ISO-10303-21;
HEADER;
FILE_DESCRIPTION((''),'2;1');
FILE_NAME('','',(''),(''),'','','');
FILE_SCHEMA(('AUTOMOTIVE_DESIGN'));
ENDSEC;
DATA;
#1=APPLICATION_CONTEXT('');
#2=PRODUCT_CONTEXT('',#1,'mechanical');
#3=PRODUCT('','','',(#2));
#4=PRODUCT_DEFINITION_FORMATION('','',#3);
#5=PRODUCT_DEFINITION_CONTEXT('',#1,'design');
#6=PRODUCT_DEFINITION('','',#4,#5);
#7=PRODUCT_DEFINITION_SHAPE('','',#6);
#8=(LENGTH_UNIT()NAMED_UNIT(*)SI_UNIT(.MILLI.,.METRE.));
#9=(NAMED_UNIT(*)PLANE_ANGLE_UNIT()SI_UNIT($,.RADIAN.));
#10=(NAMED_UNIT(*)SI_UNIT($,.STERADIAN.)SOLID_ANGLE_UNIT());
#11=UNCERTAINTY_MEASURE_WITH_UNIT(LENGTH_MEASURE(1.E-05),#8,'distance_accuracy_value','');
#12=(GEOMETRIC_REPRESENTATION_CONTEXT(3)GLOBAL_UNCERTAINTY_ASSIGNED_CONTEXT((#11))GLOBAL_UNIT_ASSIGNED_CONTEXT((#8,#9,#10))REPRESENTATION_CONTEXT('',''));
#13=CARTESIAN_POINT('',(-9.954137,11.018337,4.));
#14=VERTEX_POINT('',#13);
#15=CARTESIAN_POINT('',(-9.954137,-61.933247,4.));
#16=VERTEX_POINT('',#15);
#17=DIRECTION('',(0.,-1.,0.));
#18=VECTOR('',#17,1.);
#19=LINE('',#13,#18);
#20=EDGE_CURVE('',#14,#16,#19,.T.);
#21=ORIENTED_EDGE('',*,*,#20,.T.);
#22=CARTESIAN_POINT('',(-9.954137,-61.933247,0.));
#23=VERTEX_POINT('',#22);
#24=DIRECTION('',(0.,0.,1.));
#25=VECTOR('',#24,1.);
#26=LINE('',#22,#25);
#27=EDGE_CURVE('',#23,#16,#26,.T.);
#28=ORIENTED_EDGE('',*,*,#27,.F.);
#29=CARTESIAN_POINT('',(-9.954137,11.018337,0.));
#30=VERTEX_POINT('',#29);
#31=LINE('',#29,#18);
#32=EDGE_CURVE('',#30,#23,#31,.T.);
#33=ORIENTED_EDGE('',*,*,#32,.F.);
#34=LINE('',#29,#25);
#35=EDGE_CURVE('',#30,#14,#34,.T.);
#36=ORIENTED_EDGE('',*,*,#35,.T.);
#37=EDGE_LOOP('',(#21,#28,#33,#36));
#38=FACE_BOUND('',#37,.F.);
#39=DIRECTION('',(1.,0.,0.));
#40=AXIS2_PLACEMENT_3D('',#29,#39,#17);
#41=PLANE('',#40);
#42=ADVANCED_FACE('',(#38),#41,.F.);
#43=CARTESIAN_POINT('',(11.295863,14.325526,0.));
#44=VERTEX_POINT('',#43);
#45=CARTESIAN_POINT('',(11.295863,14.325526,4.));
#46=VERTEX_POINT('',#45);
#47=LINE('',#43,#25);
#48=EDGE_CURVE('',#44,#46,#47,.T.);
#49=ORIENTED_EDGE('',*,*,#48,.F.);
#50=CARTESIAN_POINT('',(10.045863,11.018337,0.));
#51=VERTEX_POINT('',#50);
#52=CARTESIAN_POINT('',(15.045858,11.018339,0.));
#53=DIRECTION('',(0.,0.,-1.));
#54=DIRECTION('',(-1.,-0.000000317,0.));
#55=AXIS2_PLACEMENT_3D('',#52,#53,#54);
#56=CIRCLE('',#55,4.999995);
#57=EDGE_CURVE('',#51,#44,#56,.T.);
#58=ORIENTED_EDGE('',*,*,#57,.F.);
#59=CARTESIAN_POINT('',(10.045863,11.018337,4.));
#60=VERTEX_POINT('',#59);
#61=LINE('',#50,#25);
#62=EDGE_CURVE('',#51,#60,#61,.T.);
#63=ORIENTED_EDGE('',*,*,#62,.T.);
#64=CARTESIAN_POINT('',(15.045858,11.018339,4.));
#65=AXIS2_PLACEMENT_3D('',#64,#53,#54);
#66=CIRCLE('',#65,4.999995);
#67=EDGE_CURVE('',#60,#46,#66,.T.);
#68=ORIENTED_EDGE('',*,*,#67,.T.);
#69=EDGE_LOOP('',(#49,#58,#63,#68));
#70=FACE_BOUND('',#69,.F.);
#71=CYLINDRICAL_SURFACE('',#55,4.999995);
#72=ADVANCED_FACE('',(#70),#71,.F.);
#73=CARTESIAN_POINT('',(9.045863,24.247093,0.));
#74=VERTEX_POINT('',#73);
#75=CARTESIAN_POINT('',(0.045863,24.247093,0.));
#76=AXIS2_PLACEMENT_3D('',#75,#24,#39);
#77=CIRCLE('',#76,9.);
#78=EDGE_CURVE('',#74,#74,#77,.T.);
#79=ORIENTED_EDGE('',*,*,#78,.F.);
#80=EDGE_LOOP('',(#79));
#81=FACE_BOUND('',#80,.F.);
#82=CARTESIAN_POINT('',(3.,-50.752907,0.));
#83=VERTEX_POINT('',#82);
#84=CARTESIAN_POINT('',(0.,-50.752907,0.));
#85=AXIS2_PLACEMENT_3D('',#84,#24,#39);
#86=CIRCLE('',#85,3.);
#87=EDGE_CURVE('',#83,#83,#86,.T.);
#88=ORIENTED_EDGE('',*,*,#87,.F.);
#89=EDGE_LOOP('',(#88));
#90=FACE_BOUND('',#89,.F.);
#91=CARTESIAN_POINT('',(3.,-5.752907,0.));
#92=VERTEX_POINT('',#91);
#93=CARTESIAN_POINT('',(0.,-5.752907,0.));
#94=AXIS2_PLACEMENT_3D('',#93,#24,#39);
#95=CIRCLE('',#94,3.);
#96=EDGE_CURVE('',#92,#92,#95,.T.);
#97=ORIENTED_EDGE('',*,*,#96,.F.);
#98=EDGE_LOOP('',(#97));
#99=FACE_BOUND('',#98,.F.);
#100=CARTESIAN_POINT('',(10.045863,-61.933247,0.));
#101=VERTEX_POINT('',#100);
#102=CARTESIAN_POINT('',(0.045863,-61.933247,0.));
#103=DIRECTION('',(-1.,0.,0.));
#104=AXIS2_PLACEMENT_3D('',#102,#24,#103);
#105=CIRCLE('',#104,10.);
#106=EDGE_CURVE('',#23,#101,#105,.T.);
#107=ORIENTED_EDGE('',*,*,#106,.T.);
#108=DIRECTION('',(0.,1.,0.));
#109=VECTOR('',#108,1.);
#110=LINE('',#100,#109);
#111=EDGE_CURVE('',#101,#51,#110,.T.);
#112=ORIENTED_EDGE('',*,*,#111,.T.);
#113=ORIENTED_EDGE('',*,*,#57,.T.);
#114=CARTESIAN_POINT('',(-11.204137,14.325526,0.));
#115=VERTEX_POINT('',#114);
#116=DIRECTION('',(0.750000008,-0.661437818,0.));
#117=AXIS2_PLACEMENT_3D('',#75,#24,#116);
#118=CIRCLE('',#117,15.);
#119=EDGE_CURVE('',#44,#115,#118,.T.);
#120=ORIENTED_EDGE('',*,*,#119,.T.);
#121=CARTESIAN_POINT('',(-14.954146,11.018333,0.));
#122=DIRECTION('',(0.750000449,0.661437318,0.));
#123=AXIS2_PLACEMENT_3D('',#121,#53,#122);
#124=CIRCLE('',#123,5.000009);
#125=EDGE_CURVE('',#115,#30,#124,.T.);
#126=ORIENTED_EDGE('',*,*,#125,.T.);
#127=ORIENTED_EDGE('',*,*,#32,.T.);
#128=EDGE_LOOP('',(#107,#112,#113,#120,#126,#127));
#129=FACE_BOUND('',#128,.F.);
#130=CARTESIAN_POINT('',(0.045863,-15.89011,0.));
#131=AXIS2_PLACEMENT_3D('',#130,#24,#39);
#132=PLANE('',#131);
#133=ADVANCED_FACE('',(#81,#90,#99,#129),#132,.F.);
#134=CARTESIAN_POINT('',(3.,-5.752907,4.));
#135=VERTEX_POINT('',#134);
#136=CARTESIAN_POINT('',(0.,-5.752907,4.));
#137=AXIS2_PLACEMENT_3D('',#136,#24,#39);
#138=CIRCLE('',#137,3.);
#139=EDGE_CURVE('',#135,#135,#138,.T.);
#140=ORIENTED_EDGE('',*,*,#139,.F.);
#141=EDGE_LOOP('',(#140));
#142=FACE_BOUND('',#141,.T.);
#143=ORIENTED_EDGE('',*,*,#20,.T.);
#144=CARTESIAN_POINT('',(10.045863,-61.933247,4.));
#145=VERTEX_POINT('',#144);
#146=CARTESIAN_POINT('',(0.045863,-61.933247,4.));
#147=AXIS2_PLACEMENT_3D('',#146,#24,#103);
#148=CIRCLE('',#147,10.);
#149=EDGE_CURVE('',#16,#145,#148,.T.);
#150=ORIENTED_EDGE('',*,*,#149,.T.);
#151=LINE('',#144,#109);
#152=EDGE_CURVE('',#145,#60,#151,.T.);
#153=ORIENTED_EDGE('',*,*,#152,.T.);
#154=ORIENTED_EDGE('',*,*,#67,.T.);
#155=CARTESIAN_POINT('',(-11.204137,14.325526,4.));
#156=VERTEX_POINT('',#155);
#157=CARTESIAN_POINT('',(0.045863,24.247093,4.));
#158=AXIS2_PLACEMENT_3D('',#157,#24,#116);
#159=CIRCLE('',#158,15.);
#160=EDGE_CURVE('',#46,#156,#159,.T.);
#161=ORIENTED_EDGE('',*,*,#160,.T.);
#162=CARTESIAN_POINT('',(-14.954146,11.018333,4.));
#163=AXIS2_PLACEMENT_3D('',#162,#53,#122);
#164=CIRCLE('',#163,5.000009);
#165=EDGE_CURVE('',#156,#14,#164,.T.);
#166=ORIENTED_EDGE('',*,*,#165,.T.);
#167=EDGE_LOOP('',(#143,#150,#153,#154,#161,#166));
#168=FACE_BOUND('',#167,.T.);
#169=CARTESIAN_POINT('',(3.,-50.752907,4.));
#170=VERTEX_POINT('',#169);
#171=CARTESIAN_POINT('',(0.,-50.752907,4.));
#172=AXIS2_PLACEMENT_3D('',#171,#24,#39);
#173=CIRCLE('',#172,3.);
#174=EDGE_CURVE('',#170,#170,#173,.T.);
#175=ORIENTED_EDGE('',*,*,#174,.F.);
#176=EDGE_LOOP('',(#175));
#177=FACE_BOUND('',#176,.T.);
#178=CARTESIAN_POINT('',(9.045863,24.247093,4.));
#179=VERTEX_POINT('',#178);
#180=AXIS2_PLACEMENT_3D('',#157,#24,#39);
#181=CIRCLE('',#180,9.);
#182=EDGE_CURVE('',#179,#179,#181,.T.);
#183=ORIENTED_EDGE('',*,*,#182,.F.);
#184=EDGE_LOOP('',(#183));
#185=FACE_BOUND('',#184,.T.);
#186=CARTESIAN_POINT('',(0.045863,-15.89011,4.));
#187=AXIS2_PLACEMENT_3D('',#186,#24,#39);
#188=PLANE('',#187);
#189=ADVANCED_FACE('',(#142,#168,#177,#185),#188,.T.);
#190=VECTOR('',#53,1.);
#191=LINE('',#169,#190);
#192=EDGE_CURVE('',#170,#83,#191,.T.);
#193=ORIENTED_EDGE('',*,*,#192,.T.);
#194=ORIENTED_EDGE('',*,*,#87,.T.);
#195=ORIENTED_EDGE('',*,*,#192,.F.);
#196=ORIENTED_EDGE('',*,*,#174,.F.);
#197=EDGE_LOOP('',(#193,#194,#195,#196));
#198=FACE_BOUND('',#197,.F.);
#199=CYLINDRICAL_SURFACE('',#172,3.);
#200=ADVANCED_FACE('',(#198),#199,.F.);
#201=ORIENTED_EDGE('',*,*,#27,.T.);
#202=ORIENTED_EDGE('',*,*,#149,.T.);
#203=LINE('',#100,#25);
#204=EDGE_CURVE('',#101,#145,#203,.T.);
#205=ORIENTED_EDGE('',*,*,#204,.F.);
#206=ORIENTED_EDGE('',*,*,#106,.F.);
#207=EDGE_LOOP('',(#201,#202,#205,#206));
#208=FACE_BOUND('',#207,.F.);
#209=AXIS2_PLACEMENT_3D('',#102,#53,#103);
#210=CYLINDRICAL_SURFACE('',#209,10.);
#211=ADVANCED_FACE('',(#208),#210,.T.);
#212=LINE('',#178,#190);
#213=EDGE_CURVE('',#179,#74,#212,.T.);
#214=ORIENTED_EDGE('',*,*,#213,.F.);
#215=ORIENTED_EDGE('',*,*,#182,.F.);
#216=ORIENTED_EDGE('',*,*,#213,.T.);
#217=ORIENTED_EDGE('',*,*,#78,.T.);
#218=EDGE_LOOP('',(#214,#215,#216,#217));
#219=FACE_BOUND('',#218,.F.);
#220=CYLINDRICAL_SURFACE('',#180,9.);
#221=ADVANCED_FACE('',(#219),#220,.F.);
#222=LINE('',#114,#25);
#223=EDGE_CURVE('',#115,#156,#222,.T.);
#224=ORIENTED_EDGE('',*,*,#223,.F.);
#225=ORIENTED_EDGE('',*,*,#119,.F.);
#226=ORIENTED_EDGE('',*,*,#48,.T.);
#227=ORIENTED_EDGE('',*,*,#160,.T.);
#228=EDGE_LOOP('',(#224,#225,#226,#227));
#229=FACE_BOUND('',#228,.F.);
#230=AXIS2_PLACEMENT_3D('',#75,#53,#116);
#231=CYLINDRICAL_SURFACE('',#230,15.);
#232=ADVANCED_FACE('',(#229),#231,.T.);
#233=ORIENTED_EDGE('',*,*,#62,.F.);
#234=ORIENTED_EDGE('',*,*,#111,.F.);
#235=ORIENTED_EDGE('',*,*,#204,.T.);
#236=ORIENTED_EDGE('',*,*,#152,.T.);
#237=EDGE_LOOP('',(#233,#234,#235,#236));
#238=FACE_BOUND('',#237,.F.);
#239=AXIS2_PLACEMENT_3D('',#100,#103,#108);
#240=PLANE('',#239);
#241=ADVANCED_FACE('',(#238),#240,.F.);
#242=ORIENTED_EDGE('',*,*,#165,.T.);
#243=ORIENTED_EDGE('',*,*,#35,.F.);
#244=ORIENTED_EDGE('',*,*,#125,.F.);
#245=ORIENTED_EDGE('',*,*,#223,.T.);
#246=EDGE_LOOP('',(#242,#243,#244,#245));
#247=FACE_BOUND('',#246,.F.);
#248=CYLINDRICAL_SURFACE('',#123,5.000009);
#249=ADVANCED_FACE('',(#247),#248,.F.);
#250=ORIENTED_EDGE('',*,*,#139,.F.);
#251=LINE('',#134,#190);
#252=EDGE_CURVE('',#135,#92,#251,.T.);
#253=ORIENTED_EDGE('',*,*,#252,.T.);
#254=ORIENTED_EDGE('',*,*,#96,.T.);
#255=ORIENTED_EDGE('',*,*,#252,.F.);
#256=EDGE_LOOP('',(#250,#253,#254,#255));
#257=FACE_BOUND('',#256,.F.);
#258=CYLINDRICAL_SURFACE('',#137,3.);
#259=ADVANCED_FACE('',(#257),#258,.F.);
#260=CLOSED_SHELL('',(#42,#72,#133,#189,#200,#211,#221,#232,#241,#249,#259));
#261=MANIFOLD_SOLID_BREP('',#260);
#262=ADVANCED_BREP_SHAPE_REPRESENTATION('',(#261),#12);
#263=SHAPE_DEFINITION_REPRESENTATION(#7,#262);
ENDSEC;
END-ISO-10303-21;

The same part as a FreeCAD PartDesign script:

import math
import FreeCAD as App
import Part
import Sketcher
from FreeCAD import Vector

doc = App.newDocument("Part")
body = doc.addObject("PartDesign::Body", "Body")

# Sketch on XY plane
sketch1 = body.newObject("Sketcher::SketchObject", "Sketch")
sketch1.AttachmentSupport = (doc.getObject("XY_Plane"), [""])
sketch1.MapMode = "FlatFace"
sketch1.addGeometry([
    Part.ArcOfCircle(Part.Circle(Vector(-14.954146, 11.018333, 0), Vector(0, 0, 1), 5.000009), math.radians(0.000041), math.radians(41.409583)),  # 0
    Part.LineSegment(Vector(-9.954137, 11.018337, 0), Vector(-9.954137, -61.933247, 0)),  # 1
    Part.ArcOfCircle(Part.Circle(Vector(0.045863, -61.933247, 0), Vector(0, 0, 1), 10), math.radians(180), math.radians(360)),  # 2
    Part.LineSegment(Vector(10.045863, -61.933247, 0), Vector(10.045863, 11.018337, 0)),  # 3
    Part.ArcOfCircle(Part.Circle(Vector(15.045858, 11.018339, 0), Vector(0, 0, 1), 4.999995), math.radians(138.590358), math.radians(180.000018)),  # 4
    Part.ArcOfCircle(Part.Circle(Vector(0.045863, 24.247093, 0), Vector(0, 0, 1), 15), math.radians(-41.409621), math.radians(221.409621)),  # 5
], False)
sketch1.addConstraint([
    Sketcher.Constraint("Tangent", 0, 1, 1, 1),
    Sketcher.Constraint("Tangent", 1, 2, 2, 1),
    Sketcher.Constraint("Tangent", 2, 2, 3, 1),
    Sketcher.Constraint("Tangent", 3, 2, 4, 2),
    Sketcher.Constraint("Tangent", 4, 1, 5, 1),
    Sketcher.Constraint("Tangent", 5, 2, 0, 2),
    Sketcher.Constraint("Vertical", 1),
    Sketcher.Constraint("Vertical", 3),
    Sketcher.Constraint("Horizontal", 4, 3, 0, 1),
    Sketcher.Constraint("Horizontal", 4, 1, 5, 2),
    Sketcher.Constraint("Radius", 2, 10.0),
    Sketcher.Constraint("Radius", 5, 15.0),
    Sketcher.Constraint("DistanceX", 5, 2, 4, 1, 22.5),
    Sketcher.Constraint("DistanceY", 1, 2, 1, 1, 72.951584),
    Sketcher.Constraint("DistanceX", -1, 1, 4, 3, 15.045858),
    Sketcher.Constraint("DistanceY", -1, 1, 4, 3, 11.018339),
])
pad1 = body.newObject("PartDesign::Pad", "Pad")
pad1.Profile = sketch1
pad1.Length = 4

# Sketch on XY plane
sketch2 = body.newObject("Sketcher::SketchObject", "Sketch001")
sketch2.AttachmentSupport = (doc.getObject("XY_Plane"), [""])
sketch2.MapMode = "FlatFace"
sketch2.AttachmentOffset = App.Placement(Vector(0, 0, 4), App.Rotation())
sketch2.addGeometry([
    Part.Circle(Vector(0.045863, 24.247093, 0), Vector(0, 0, 1), 9),
    Part.Circle(Vector(0, -5.752907, 0), Vector(0, 0, 1), 3),
    Part.Circle(Vector(0, -50.752907, 0), Vector(0, 0, 1), 3),
], False)
sketch2.addConstraint([
    Sketcher.Constraint("Equal", 1, 2),
    Sketcher.Constraint("PointOnObject", 1, 3, -2),
    Sketcher.Constraint("PointOnObject", 2, 3, -2),
    Sketcher.Constraint("Diameter", 0, 18.0),
    Sketcher.Constraint("Diameter", 1, 6.0),
    Sketcher.Constraint("DistanceY", 1, 3, 0, 3, 30.0),
    Sketcher.Constraint("DistanceY", 2, 3, 1, 3, 45.0),
    Sketcher.Constraint("DistanceX", -1, 1, 0, 3, 0.045863),
    Sketcher.Constraint("DistanceY", -1, 1, 0, 3, 24.247093),
])
pocket1 = body.newObject("PartDesign::Pocket", "Pocket")
pocket1.Profile = sketch2
pocket1.Type = "ThroughAll"

doc.recompute()
